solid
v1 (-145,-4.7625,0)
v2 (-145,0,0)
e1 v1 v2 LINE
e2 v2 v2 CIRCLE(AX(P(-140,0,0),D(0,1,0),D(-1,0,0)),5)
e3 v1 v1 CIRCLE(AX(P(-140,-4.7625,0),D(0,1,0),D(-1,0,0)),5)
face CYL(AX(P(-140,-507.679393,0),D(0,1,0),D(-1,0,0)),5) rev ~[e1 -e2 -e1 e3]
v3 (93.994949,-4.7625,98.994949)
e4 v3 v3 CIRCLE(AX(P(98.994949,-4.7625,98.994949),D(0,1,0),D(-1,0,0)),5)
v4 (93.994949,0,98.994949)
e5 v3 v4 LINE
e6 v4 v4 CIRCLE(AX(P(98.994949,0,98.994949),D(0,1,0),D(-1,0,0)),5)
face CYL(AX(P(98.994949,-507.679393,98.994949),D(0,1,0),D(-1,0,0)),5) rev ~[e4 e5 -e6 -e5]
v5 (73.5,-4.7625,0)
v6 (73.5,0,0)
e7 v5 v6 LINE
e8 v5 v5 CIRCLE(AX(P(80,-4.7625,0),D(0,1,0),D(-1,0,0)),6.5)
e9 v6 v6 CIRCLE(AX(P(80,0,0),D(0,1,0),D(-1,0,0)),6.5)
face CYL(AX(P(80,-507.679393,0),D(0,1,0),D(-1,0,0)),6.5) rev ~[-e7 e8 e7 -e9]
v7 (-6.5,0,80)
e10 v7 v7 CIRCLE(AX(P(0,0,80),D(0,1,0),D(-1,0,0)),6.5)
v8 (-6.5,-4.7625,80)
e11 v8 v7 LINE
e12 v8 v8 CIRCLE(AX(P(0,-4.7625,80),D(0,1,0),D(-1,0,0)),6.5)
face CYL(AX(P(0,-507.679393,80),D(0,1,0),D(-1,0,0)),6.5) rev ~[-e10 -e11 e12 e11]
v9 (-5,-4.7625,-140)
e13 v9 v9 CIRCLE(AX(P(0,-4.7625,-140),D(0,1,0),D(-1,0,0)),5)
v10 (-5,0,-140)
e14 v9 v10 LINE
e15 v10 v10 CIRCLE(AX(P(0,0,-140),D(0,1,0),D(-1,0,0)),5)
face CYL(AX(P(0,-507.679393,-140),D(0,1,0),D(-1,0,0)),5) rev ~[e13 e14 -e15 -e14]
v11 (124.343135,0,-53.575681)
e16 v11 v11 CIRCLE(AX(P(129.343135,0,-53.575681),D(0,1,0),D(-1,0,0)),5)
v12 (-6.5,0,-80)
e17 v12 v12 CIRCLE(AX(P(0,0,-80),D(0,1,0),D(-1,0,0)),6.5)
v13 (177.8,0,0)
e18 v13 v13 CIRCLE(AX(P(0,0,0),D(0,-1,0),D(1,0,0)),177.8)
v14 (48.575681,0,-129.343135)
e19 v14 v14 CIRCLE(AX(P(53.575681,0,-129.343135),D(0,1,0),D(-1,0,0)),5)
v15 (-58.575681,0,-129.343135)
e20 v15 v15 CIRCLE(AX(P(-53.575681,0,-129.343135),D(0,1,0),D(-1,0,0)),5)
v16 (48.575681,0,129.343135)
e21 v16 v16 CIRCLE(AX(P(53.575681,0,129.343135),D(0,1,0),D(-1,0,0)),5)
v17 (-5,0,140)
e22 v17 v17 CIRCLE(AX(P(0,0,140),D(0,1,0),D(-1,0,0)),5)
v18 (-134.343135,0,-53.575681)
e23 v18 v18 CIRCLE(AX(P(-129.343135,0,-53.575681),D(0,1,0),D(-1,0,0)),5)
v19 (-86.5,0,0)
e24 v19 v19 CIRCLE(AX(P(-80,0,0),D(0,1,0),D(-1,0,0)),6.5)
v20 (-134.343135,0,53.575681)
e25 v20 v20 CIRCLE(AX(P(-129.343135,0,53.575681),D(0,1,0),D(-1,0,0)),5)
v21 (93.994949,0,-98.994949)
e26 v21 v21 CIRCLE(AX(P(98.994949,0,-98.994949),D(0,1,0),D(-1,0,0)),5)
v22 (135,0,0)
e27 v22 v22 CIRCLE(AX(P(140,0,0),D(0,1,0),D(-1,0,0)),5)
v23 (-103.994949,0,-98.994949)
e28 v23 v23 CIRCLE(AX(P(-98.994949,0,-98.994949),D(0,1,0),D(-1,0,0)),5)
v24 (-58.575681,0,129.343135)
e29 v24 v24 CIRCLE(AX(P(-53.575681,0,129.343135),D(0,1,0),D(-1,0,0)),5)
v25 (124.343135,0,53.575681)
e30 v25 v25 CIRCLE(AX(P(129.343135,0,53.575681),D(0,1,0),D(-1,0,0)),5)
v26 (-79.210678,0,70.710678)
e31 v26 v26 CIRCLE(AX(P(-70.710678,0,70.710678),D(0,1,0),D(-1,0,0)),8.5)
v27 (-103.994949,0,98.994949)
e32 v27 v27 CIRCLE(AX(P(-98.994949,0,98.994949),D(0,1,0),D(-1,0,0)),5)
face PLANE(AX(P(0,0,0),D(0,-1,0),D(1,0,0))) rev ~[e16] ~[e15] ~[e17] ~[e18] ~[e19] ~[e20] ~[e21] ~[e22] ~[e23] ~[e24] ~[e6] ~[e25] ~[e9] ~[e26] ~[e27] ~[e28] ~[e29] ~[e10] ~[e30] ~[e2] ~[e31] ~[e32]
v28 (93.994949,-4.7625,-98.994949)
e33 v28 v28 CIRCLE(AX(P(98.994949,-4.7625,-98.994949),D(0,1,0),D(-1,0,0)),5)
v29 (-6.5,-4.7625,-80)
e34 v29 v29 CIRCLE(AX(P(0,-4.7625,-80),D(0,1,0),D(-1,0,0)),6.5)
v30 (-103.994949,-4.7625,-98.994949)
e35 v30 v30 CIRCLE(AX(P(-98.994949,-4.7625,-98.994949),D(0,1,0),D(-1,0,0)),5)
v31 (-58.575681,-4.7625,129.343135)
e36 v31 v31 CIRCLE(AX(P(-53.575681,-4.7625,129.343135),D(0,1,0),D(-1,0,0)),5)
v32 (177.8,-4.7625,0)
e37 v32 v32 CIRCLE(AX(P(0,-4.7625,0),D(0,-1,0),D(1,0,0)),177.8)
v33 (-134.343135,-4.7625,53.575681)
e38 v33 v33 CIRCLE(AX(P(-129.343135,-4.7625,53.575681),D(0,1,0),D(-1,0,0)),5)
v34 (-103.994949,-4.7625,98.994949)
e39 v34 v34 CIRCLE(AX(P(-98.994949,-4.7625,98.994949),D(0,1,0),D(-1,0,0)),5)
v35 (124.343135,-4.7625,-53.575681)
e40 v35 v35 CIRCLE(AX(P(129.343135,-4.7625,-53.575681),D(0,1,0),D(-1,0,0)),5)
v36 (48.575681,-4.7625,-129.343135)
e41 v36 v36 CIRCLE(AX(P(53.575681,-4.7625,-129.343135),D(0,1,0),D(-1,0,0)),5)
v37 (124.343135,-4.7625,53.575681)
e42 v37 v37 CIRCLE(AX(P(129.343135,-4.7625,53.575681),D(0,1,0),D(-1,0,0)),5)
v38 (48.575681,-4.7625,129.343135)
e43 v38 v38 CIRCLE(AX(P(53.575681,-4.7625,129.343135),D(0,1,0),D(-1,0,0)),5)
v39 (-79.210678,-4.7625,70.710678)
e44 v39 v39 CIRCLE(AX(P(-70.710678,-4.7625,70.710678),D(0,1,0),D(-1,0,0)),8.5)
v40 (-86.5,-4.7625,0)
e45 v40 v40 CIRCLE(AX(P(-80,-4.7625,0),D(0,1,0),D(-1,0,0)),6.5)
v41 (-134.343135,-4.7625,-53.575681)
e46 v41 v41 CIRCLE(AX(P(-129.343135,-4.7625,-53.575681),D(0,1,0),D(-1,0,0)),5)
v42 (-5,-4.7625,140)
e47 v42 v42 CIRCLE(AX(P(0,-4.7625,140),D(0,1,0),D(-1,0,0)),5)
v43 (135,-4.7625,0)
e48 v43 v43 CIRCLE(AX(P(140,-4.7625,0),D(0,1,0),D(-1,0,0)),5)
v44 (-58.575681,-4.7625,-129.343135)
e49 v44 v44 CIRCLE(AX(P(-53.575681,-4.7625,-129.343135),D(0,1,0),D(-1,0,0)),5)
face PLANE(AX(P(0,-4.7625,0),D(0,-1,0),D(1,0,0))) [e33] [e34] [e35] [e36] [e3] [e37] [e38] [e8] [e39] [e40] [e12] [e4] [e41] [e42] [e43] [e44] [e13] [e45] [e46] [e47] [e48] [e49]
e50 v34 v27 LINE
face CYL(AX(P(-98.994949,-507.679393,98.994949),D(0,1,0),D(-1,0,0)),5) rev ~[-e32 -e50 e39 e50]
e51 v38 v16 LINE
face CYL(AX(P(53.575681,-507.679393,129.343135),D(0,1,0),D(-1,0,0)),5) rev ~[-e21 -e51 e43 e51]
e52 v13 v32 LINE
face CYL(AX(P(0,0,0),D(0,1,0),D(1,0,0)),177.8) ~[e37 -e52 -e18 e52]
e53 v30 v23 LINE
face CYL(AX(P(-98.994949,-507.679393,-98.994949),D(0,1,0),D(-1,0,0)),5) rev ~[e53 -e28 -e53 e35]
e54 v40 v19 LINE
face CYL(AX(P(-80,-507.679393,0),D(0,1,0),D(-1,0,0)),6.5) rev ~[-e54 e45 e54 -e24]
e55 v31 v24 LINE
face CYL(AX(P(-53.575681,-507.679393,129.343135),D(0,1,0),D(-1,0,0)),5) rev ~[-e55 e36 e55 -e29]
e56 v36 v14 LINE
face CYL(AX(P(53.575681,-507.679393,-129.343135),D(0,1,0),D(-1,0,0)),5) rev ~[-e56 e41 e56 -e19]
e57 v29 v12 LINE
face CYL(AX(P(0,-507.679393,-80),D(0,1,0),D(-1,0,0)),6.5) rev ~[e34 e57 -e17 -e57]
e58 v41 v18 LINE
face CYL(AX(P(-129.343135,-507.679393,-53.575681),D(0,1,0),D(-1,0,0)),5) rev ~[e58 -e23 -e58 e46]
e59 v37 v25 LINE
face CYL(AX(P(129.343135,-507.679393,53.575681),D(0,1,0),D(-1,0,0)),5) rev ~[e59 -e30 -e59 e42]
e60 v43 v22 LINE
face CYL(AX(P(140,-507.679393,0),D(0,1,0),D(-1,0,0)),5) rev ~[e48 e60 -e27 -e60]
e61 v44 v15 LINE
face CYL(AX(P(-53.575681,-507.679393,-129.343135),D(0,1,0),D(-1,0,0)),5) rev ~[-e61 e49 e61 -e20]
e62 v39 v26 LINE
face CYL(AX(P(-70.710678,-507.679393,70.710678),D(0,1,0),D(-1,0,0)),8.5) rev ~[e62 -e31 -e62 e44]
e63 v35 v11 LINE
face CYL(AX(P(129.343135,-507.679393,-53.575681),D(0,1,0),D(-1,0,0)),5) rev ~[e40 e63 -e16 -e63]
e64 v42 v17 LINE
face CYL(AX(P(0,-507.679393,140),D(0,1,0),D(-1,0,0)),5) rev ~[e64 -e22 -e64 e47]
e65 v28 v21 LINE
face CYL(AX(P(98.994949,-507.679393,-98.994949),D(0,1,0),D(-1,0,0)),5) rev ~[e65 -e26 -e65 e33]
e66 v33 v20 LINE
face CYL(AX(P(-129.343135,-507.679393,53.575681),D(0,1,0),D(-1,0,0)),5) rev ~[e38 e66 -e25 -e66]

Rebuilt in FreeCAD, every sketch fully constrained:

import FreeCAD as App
import Part
import Sketcher

doc = App.newDocument("Part")
params = doc.addObject("Spreadsheet::Sheet", "Params")
for row, (alias, value) in enumerate([
    ("sketch1_diameter", "355.6 mm"),
    ("pad1_length", "4.7625 mm"),
    ("sketch2_diameter", "10 mm"),
    ("hole_diameter", "10 mm"),
    ("sketch3_diameter", "13 mm"),
    ("hole2_diameter", "13 mm"),
    ("sketch4_diameter", "17 mm"),
    ("hole3_diameter", "17 mm"),
], start=1):
    params.set(f"A{row}", alias)
    params.set(f"B{row}", "=" + value)
    params.setAlias(f"B{row}", alias)

body = doc.addObject("PartDesign::Body", "Body")

# Sketch on XZ plane
sketch1 = body.newObject("Sketcher::SketchObject", "Sketch")
sketch1.AttachmentSupport = (doc.getObject("XZ_Plane"), [""])
sketch1.MapMode = "FlatFace"
sketch1.addGeometry(Part.Circle(App.Vector(0, 0, 0), App.Vector(0, 0, 1), 178), False)
sketch1.addConstraint(Sketcher.Constraint("Coincident", 0, 3, -1, 1))
sketch1.addConstraint(Sketcher.Constraint("Diameter", 0, 355.6))
sketch1.setExpression("Constraints[1]", "Params.sketch1_diameter")
pad1 = body.newObject("PartDesign::Pad", "Pad")
pad1.Profile = sketch1
pad1.setExpression("Length", "Params.pad1_length")

# Sketch on XZ plane
sketch2 = body.newObject("Sketcher::SketchObject", "Sketch001")
sketch2.AttachmentSupport = (doc.getObject("XZ_Plane"), [""])
sketch2.MapMode = "FlatFace"
sketch2.AttachmentOffset = App.Placement(App.Vector(0, 0, 4.7625), App.Rotation())
sketch2.addGeometry(Part.Circle(App.Vector(0, 140, 0), App.Vector(0, 0, 1), 5), False)
sketch2.addGeometry(Part.Circle(App.Vector(54, 129, 0), App.Vector(0, 0, 1), 5), False)
sketch2.addGeometry(Part.Circle(App.Vector(99, 99, 0), App.Vector(0, 0, 1), 5), False)
sketch2.addGeometry(Part.Circle(App.Vector(129, 54, 0), App.Vector(0, 0, 1), 5), False)
sketch2.addGeometry(Part.Circle(App.Vector(140, 0, 0), App.Vector(0, 0, 1), 5), False)
sketch2.addGeometry(Part.Circle(App.Vector(129, -54, 0), App.Vector(0, 0, 1), 5), False)
sketch2.addGeometry(Part.Circle(App.Vector(99, -99, 0), App.Vector(0, 0, 1), 5), False)
sketch2.addGeometry(Part.Circle(App.Vector(54, -129, 0), App.Vector(0, 0, 1), 5), False)
sketch2.addGeometry(Part.Circle(App.Vector(0, -140, 0), App.Vector(0, 0, 1), 5), False)
sketch2.addGeometry(Part.Circle(App.Vector(-54, -129, 0), App.Vector(0, 0, 1), 5), False)
sketch2.addGeometry(Part.Circle(App.Vector(-99, -99, 0), App.Vector(0, 0, 1), 5), False)
sketch2.addGeometry(Part.Circle(App.Vector(-129, -54, 0), App.Vector(0, 0, 1), 5), False)
sketch2.addGeometry(Part.Circle(App.Vector(-140, 0, 0), App.Vector(0, 0, 1), 5), False)
sketch2.addGeometry(Part.Circle(App.Vector(-129, 54, 0), App.Vector(0, 0, 1), 5), False)
sketch2.addGeometry(Part.Circle(App.Vector(-99, 99, 0), App.Vector(0, 0, 1), 5), False)
sketch2.addGeometry(Part.Circle(App.Vector(-54, 129, 0), App.Vector(0, 0, 1), 5), False)
sketch2.addGeometry(Part.Circle(App.Vector(-54, 129, 0), App.Vector(0, 0, 1), 5), False)
sketch2.addConstraint(Sketcher.Constraint("Coincident", 16, 3, 15, 3))
sketch2.addConstraint(Sketcher.Constraint("Equal", 0, 1))
sketch2.addConstraint(Sketcher.Constraint("Equal", 1, 2))
sketch2.addConstraint(Sketcher.Constraint("Equal", 2, 3))
sketch2.addConstraint(Sketcher.Constraint("Equal", 3, 4))
sketch2.addConstraint(Sketcher.Constraint("Equal", 4, 5))
sketch2.addConstraint(Sketcher.Constraint("Equal", 5, 6))
sketch2.addConstraint(Sketcher.Constraint("Equal", 6, 7))
sketch2.addConstraint(Sketcher.Constraint("Equal", 7, 8))
sketch2.addConstraint(Sketcher.Constraint("Equal", 8, 9))
sketch2.addConstraint(Sketcher.Constraint("Equal", 9, 10))
sketch2.addConstraint(Sketcher.Constraint("Equal", 10, 11))
sketch2.addConstraint(Sketcher.Constraint("Equal", 11, 12))
sketch2.addConstraint(Sketcher.Constraint("Equal", 12, 13))
sketch2.addConstraint(Sketcher.Constraint("Equal", 13, 14))
sketch2.addConstraint(Sketcher.Constraint("Equal", 14, 15))
sketch2.addConstraint(Sketcher.Constraint("Equal", 15, 16))
sketch2.addConstraint(Sketcher.Constraint("Symmetric", 0, 3, 8, 3, -1, 1))
sketch2.addConstraint(Sketcher.Constraint("Symmetric", 1, 3, 9, 3, -1, 1))
sketch2.addConstraint(Sketcher.Constraint("Symmetric", 2, 3, 10, 3, -1, 1))
sketch2.addConstraint(Sketcher.Constraint("Symmetric", 3, 3, 11, 3, -1, 1))
sketch2.addConstraint(Sketcher.Constraint("Symmetric", 4, 3, 12, 3, -1, 1))
sketch2.addConstraint(Sketcher.Constraint("Symmetric", 5, 3, 13, 3, -1, 1))
sketch2.addConstraint(Sketcher.Constraint("Symmetric", 6, 3, 14, 3, -1, 1))
sketch2.addConstraint(Sketcher.Constraint("Symmetric", 7, 3, 15, 3, -1, 1))
sketch2.addConstraint(Sketcher.Constraint("Symmetric", 7, 3, 9, 3, -2))
sketch2.addConstraint(Sketcher.Constraint("Symmetric", 6, 3, 10, 3, -2))
sketch2.addConstraint(Sketcher.Constraint("Symmetric", 5, 3, 11, 3, -2))
sketch2.addConstraint(Sketcher.Constraint("PointOnObject", 0, 3, -2))
sketch2.addConstraint(Sketcher.Constraint("PointOnObject", 4, 3, -1))
sketch2.addConstraint(Sketcher.Constraint("Diameter", 0, 10.0))
sketch2.addConstraint(Sketcher.Constraint("DistanceY", -1, 1, 0, 3, 140.0))
sketch2.addConstraint(Sketcher.Constraint("DistanceX", -1, 1, 4, 3, 140.0))
sketch2.addConstraint(Sketcher.Constraint("DistanceY", 6, 3, 2, 3, 197.989898))
sketch2.addConstraint(Sketcher.Constraint("DistanceX", 10, 3, 6, 3, 197.989898))
sketch2.addConstraint(Sketcher.Constraint("DistanceX", -1, 1, 1, 3, 53.575681))
sketch2.addConstraint(Sketcher.Constraint("DistanceY", -1, 1, 3, 3, 53.575681))
sketch2.addConstraint(Sketcher.Constraint("DistanceY", -1, 1, 1, 3, 129.343135))
sketch2.addConstraint(Sketcher.Constraint("DistanceX", -1, 1, 3, 3, 129.343135))
sketch2.setExpression("Constraints[30]", "Params.sketch2_diameter")
doc.recompute()
hole = body.newObject("PartDesign::Hole", "Hole")
hole.Profile = sketch2
hole.ThreadType = "None"
hole.setExpression("Diameter", "Params.hole_diameter")
hole.DepthType = "ThroughAll"

# Sketch on XZ plane
sketch3 = body.newObject("Sketcher::SketchObject", "Sketch002")
sketch3.AttachmentSupport = (doc.getObject("XZ_Plane"), [""])
sketch3.MapMode = "FlatFace"
sketch3.AttachmentOffset = App.Placement(App.Vector(0, 0, 4.7625), App.Rotation())
sketch3.addGeometry(Part.Circle(App.Vector(0, 80, 0), App.Vector(0, 0, 1), 6), False)
sketch3.addGeometry(Part.Circle(App.Vector(80, 0, 0), App.Vector(0, 0, 1), 6), False)
sketch3.addGeometry(Part.Circle(App.Vector(0, -80, 0), App.Vector(0, 0, 1), 6), False)
sketch3.addGeometry(Part.Circle(App.Vector(-80, 0, 0), App.Vector(0, 0, 1), 6), False)
sketch3.addConstraint(Sketcher.Constraint("Equal", 0, 1))
sketch3.addConstraint(Sketcher.Constraint("Equal", 1, 2))
sketch3.addConstraint(Sketcher.Constraint("Equal", 2, 3))
sketch3.addConstraint(Sketcher.Constraint("Symmetric", 0, 3, 2, 3, -1, 1))
sketch3.addConstraint(Sketcher.Constraint("Symmetric", 1, 3, 3, 3, -1, 1))
sketch3.addConstraint(Sketcher.Constraint("PointOnObject", 0, 3, -2))
sketch3.addConstraint(Sketcher.Constraint("PointOnObject", 1, 3, -1))
sketch3.addConstraint(Sketcher.Constraint("Diameter", 0, 13.0))
sketch3.addConstraint(Sketcher.Constraint("DistanceY", -1, 1, 0, 3, 80.0))
sketch3.addConstraint(Sketcher.Constraint("DistanceX", -1, 1, 1, 3, 80.0))
sketch3.setExpression("Constraints[7]", "Params.sketch3_diameter")
doc.recompute()
hole2 = body.newObject("PartDesign::Hole", "Hole001")
hole2.Profile = sketch3
hole2.ThreadType = "None"
hole2.setExpression("Diameter", "Params.hole2_diameter")
hole2.DepthType = "ThroughAll"

# Sketch on XZ plane
sketch4 = body.newObject("Sketcher::SketchObject", "Sketch003")
sketch4.AttachmentSupport = (doc.getObject("XZ_Plane"), [""])
sketch4.MapMode = "FlatFace"
sketch4.AttachmentOffset = App.Placement(App.Vector(0, 0, 4.7625), App.Rotation())
sketch4.addGeometry(Part.Circle(App.Vector(-71, 71, 0), App.Vector(0, 0, 1), 8), False)
sketch4.addConstraint(Sketcher.Constraint("Diameter", 0, 17.0))
sketch4.addConstraint(Sketcher.Constraint("DistanceX", 0, 3, -1, 1, 70.710678))
sketch4.addConstraint(Sketcher.Constraint("DistanceY", -1, 1, 0, 3, 70.710678))
sketch4.setExpression("Constraints[0]", "Params.sketch4_diameter")
doc.recompute()
hole3 = body.newObject("PartDesign::Hole", "Hole002")
hole3.Profile = sketch4
hole3.ThreadType = "None"
hole3.setExpression("Diameter", "Params.hole3_diameter")
hole3.DepthType = "ThroughAll"

doc.recompute()
